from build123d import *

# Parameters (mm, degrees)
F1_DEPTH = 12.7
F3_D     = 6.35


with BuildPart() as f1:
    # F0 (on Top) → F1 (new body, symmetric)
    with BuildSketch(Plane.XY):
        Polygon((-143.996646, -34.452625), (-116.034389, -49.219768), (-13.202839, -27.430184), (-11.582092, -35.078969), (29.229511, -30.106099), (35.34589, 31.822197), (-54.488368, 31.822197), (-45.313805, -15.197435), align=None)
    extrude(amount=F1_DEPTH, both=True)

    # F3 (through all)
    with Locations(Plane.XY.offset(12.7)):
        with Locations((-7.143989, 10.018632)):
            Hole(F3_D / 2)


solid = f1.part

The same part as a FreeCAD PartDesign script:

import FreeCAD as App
import Part
import Sketcher

V = App.Vector
Q = App.Units.Quantity

doc = App.newDocument("Part")
body = doc.addObject("PartDesign::Body", "Body")

sketch1 = body.newObject("Sketcher::SketchObject", "Sketch")
sketch1.AttachmentSupport = (doc.getObject("XY_Plane"), [""])
sketch1.MapMode = "FlatFace"
sketch1.addGeometry([
    Part.LineSegment(V(-144, -34, 0), V(-116, -49, 0)),
    Part.LineSegment(V(-116, -49, 0), V(-13, -27, 0)),
    Part.LineSegment(V(-13, -27, 0), V(-12, -35, 0)),
    Part.LineSegment(V(-12, -35, 0), V(29, -30, 0)),
    Part.LineSegment(V(29, -30, 0), V(35, 32, 0)),
    Part.LineSegment(V(35, 32, 0), V(-54, 32, 0)),
    Part.LineSegment(V(-54, 32, 0), V(-45, -15, 0)),
    Part.LineSegment(V(-45, -15, 0), V(-144, -34, 0)),
], False)
sketch1.addConstraint([
    Sketcher.Constraint("Coincident", 0, 2, 1, 1),
    Sketcher.Constraint("Coincident", 1, 2, 2, 1),
    Sketcher.Constraint("Coincident", 2, 2, 3, 1),
    Sketcher.Constraint("Coincident", 3, 2, 4, 1),
    Sketcher.Constraint("Coincident", 4, 2, 5, 1),
    Sketcher.Constraint("Coincident", 5, 2, 6, 1),
    Sketcher.Constraint("Coincident", 6, 2, 7, 1),
    Sketcher.Constraint("Coincident", 7, 2, 0, 1),
    Sketcher.Constraint("Horizontal", 5),
    Sketcher.Constraint("Perpendicular", 1, 2),
    Sketcher.Constraint("Perpendicular", 6, 7),
    Sketcher.Constraint("DistanceX", 5, 2, 5, 1, Q("89.834258 mm")),
    Sketcher.Constraint("DistanceY", 3, 2, -1, 1, Q("30.106099 mm")),
    Sketcher.Constraint("DistanceY", 0, 2, 2, 2, Q("14.140799 mm")),
    Sketcher.Constraint("DistanceX", 0, 2, 3, 2, Q("145.2639 mm")),
    Sketcher.Constraint("Distance", 6, Q("47.90635 mm")),
    Sketcher.Constraint("Distance", 7, Q("100.543848 mm")),
    Sketcher.Constraint("DistanceX", 0, 2, -1, 1, Q("116.034389 mm")),
    Sketcher.Constraint("DistanceY", 0, 2, -1, 1, Q("49.219768 mm")),
    Sketcher.Constraint("DistanceX", 1, 2, -1, 1, Q("13.202839 mm")),
    Sketcher.Constraint("DistanceX", 2, 2, -1, 1, Q("11.582092 mm")),
    Sketcher.Constraint("DistanceX", -1, 1, 4, 2, Q("35.34589 mm")),
    Sketcher.Constraint("DistanceY", 1, 2, 4, 2, Q("59.252381 mm")),
    Sketcher.Constraint("DistanceY", 1, 2, 6, 2, Q("12.232749 mm")),
])
pad1 = body.newObject("PartDesign::Pad", "Pad")
pad1.Profile = sketch1
pad1.Length = Q("1 in")
pad1.Midplane = True

sketch2 = body.newObject("Sketcher::SketchObject", "Sketch001")
sketch2.AttachmentSupport = (doc.getObject("XY_Plane"), [""])
sketch2.MapMode = "FlatFace"
sketch2.AttachmentOffset = App.Placement(V(0, 0, 0.5 * 25.4), App.Rotation())
sketch2.addGeometry(Part.Circle(V(-7.1, 10, 0), V(0, 0, 1), 3.2), False)
sketch2.addConstraint([
    Sketcher.Constraint("Diameter", 0, Q("0.25 in")),
    Sketcher.Constraint("DistanceX", 0, 3, -1, 1, Q("7.143989 mm")),
    Sketcher.Constraint("DistanceY", -1, 1, 0, 3, Q("10.018632 mm")),
])
doc.recompute()
hole = body.newObject("PartDesign::Hole", "Hole")
hole.Profile = sketch2
hole.ThreadType = "None"
hole.Diameter = Q("0.25 in")
hole.DepthType = "ThroughAll"

doc.recompute()
